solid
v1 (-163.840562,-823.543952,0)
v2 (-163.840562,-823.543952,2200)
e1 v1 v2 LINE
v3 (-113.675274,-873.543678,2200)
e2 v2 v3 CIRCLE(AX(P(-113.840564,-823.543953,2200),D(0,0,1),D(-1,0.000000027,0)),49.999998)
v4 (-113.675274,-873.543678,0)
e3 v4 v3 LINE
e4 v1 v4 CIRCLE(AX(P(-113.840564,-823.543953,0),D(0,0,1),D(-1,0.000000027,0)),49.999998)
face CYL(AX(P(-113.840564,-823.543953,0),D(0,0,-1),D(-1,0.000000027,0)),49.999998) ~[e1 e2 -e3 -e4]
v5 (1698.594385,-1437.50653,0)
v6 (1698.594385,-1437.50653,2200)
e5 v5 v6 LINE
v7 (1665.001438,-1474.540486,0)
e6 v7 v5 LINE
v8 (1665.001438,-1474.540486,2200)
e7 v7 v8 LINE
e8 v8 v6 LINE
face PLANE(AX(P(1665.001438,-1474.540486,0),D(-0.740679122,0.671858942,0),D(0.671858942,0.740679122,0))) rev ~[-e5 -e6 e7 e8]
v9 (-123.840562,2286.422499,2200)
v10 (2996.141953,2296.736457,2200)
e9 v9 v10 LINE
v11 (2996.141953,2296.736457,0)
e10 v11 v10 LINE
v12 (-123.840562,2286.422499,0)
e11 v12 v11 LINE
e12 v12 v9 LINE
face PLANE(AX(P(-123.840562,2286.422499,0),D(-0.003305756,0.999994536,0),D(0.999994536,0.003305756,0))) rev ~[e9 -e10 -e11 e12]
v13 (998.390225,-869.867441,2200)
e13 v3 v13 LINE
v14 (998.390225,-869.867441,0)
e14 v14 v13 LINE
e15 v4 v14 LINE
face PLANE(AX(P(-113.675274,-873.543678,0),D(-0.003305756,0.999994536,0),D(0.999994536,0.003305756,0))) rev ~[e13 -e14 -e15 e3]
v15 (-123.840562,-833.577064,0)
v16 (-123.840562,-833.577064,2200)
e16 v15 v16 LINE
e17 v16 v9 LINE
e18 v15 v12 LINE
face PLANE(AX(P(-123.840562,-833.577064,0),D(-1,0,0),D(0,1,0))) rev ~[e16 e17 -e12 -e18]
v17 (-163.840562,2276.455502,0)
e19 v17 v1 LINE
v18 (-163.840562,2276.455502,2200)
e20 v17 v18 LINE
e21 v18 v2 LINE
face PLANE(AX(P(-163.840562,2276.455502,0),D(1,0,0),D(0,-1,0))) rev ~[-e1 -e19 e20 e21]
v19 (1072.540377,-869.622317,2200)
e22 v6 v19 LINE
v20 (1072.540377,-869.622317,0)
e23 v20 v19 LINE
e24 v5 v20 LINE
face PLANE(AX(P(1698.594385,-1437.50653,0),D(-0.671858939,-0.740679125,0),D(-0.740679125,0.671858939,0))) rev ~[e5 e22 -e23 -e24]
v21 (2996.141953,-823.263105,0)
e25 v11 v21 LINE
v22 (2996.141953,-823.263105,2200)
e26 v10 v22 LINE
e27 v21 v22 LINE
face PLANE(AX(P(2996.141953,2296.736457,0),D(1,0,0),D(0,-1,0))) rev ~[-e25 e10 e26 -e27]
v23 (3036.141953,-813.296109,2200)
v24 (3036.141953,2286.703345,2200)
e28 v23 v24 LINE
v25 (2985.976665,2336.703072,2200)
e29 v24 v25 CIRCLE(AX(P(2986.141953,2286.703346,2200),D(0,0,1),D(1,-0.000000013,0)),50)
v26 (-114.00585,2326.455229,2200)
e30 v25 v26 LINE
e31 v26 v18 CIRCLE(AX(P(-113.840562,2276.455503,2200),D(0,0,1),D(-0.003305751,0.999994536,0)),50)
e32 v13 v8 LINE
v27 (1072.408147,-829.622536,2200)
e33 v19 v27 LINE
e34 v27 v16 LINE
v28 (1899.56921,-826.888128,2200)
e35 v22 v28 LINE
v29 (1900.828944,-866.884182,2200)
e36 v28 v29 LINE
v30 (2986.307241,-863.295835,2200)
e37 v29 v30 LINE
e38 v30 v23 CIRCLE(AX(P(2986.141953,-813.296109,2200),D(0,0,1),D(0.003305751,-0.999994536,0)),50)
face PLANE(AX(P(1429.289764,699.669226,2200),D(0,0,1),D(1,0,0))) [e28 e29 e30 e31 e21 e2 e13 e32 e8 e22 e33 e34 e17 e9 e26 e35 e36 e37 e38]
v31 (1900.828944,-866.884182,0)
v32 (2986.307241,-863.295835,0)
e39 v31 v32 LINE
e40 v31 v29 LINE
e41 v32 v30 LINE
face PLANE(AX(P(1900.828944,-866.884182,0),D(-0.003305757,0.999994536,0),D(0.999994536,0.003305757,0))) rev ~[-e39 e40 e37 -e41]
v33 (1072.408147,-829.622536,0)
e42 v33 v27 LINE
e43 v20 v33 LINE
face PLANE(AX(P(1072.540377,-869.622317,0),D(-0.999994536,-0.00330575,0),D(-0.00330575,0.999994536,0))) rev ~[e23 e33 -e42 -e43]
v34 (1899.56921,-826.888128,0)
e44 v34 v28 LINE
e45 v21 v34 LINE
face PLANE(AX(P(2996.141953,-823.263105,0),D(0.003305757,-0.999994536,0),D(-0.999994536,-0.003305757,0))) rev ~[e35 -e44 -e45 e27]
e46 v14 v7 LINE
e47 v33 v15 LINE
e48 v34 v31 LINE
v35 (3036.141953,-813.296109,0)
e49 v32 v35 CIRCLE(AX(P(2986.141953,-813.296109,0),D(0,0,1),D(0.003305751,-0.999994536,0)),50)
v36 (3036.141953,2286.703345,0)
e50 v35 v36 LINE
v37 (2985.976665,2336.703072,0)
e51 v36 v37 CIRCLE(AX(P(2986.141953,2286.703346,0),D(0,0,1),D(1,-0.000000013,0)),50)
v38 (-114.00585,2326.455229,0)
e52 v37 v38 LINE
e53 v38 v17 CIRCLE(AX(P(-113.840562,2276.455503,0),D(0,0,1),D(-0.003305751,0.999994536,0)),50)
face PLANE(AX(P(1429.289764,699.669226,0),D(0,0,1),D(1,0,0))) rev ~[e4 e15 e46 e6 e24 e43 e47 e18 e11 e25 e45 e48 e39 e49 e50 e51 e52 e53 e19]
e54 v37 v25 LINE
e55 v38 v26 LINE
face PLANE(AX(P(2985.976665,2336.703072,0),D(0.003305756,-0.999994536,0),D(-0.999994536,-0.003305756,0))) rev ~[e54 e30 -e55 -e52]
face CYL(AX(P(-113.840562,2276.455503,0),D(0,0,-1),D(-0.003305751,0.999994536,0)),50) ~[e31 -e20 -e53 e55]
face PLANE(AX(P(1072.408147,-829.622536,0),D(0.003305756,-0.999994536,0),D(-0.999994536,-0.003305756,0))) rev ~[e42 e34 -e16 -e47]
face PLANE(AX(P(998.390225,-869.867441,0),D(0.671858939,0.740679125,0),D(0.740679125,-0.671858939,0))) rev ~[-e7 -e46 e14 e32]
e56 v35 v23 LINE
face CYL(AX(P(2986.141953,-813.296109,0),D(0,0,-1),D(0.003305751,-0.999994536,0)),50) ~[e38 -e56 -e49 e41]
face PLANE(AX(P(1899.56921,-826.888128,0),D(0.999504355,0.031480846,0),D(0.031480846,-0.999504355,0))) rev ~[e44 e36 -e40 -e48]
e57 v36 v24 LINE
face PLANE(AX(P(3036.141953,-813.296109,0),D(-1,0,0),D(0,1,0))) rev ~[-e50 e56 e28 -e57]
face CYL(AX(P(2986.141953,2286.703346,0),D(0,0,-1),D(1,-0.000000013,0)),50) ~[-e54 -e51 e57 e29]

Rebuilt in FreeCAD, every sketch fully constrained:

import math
import FreeCAD as App
import Part
import Sketcher

V = App.Vector
Q = App.Units.Quantity

doc = App.newDocument("Part")
body = doc.addObject("PartDesign::Body", "Body")

sketch1 = body.newObject("Sketcher::SketchObject", "Sketch")
sketch1.AttachmentSupport = (doc.getObject("XY_Plane"), [""])
sketch1.MapMode = "FlatFace"
sketch1.addGeometry([
    Part.ArcOfCircle(Part.Circle(V(-113.840562, 2276.455503, 0), V(0, 0, 1), 50), math.radians(90.189406), math.radians(180.000001)),
    Part.LineSegment(V(-163.840562, 2276.455502, 0), V(-163.840562, -823.543952, 0)),
    Part.ArcOfCircle(Part.Circle(V(-113.840564, -823.543953, 0), V(0, 0, 1), 49.999998), math.radians(179.999998), math.radians(270.189409)),
    Part.LineSegment(V(-113.675274, -873.543678, 0), V(998.390225, -869.867441, 0)),
    Part.LineSegment(V(998.390225, -869.867441, 0), V(1665.001438, -1474.540486, 0)),
    Part.LineSegment(V(1665.001438, -1474.540486, 0), V(1698.594385, -1437.50653, 0)),
    Part.LineSegment(V(1698.594385, -1437.50653, 0), V(1072.540377, -869.622317, 0)),
    Part.LineSegment(V(1072.540377, -869.622317, 0), V(1072.408147, -829.622536, 0)),
    Part.LineSegment(V(1072.408147, -829.622536, 0), V(-123.840562, -833.577064, 0)),
    Part.LineSegment(V(-123.840562, -833.577064, 0), V(-123.840562, 2286.422499, 0)),
    Part.LineSegment(V(-123.840562, 2286.422499, 0), V(2996.141953, 2296.736457, 0)),
    Part.LineSegment(V(2996.141953, 2296.736457, 0), V(2996.141953, -823.263105, 0)),
    Part.LineSegment(V(2996.141953, -823.263105, 0), V(1899.56921, -826.888128, 0)),
    Part.LineSegment(V(1899.56921, -826.888128, 0), V(1900.828944, -866.884182, 0)),
    Part.LineSegment(V(1900.828944, -866.884182, 0), V(2986.307241, -863.295835, 0)),
    Part.ArcOfCircle(Part.Circle(V(2986.141953, -813.296109, 0), V(0, 0, 1), 50), math.radians(-89.810594), math.radians(0)),
    Part.LineSegment(V(3036.141953, -813.296109, 0), V(3036.141953, 2286.703345, 0)),
    Part.ArcOfCircle(Part.Circle(V(2986.141953, 2286.703346, 0), V(0, 0, 1), 50), math.radians(-0.000001), math.radians(90.189407)),
    Part.LineSegment(V(2985.976665, 2336.703072, 0), V(-114.00585, 2326.455229, 0)),
], False)
sketch1.addConstraint([
    Sketcher.Constraint("Tangent", 0, 2, 1, 1),
    Sketcher.Constraint("Tangent", 1, 2, 2, 1),
    Sketcher.Constraint("Tangent", 2, 2, 3, 1),
    Sketcher.Constraint("Coincident", 3, 2, 4, 1),
    Sketcher.Constraint("Coincident", 4, 2, 5, 1),
    Sketcher.Constraint("Coincident", 5, 2, 6, 1),
    Sketcher.Constraint("Coincident", 6, 2, 7, 1),
    Sketcher.Constraint("Coincident", 7, 2, 8, 1),
    Sketcher.Constraint("Coincident", 8, 2, 9, 1),
    Sketcher.Constraint("Coincident", 9, 2, 10, 1),
    Sketcher.Constraint("Coincident", 10, 2, 11, 1),
    Sketcher.Constraint("Coincident", 11, 2, 12, 1),
    Sketcher.Constraint("Coincident", 12, 2, 13, 1),
    Sketcher.Constraint("Coincident", 13, 2, 14, 1),
    Sketcher.Constraint("Tangent", 14, 2, 15, 1),
    Sketcher.Constraint("Tangent", 15, 2, 16, 1),
    Sketcher.Constraint("Tangent", 16, 2, 17, 1),
    Sketcher.Constraint("Tangent", 17, 2, 18, 1),
    Sketcher.Constraint("Tangent", 18, 2, 0, 1),
    Sketcher.Constraint("Vertical", 1),
    Sketcher.Constraint("Vertical", 9),
    Sketcher.Constraint("Vertical", 11),
    Sketcher.Constraint("Vertical", 16),
    Sketcher.Constraint("Equal", 0, 2),
    Sketcher.Constraint("Equal", 2, 15),
    Sketcher.Constraint("Equal", 15, 17),
    Sketcher.Constraint("Perpendicular", 4, 5),
    Sketcher.Constraint("Perpendicular", 5, 6),
    Sketcher.Constraint("Perpendicular", 3, 7),
    Sketcher.Constraint("Perpendicular", 7, 8),
    Sketcher.Constraint("Parallel", 8, 10),
    Sketcher.Constraint("Parallel", 10, 12),
    Sketcher.Constraint("Parallel", 12, 14),
    Sketcher.Constraint("Parallel", 14, 18),
    Sketcher.Constraint("Equal", 9, 11),
    Sketcher.Constraint("Equal", 1, 16),
    Sketcher.Constraint("Radius", 0, Q("50 mm")),
    Sketcher.Constraint("Distance", 4, Q("900 mm")),
    Sketcher.Constraint("Distance", 5, Q("50 mm")),
    Sketcher.Constraint("Distance", 7, Q("40 mm")),
    Sketcher.Constraint("DistanceX", 1, 2, 8, 2, Q("40 mm")),
    Sketcher.Constraint("DistanceX", 17, 3, 10, 2, Q("10 mm")),
    Sketcher.Constraint("DistanceX", 1, 2, 4, 2, Q("1828.842 mm")),
    Sketcher.Constraint("DistanceY", 11, 2, 11, 1, Q("3119.999562 mm")),
    Sketcher.Constraint("DistanceY", -1, 1, 0, 2, Q("2276.455502 mm")),
    Sketcher.Constraint("DistanceY", -1, 1, 9, 2, Q("2286.422499 mm")),
    Sketcher.Constraint("DistanceY", 2, 3, 17, 3, Q("3110.247299 mm")),
    Sketcher.Constraint("DistanceX", 2, 2, 3, 2, Q("1112.065499 mm")),
    Sketcher.Constraint("Distance", 6, Q("845.24322 mm")),
    Sketcher.Constraint("Distance", 14, Q("1085.484228 mm")),
    Sketcher.Constraint("DistanceX", 0, 2, -1, 1, Q("163.840562 mm")),
    Sketcher.Constraint("DistanceX", -1, 1, 12, 2, Q("1899.56921 mm")),
    Sketcher.Constraint("DistanceX", -1, 1, 14, 2, Q("2986.307241 mm")),
])
pad1 = body.newObject("PartDesign::Pad", "Pad")
pad1.Profile = sketch1
pad1.Length = 2200

doc.recompute()
